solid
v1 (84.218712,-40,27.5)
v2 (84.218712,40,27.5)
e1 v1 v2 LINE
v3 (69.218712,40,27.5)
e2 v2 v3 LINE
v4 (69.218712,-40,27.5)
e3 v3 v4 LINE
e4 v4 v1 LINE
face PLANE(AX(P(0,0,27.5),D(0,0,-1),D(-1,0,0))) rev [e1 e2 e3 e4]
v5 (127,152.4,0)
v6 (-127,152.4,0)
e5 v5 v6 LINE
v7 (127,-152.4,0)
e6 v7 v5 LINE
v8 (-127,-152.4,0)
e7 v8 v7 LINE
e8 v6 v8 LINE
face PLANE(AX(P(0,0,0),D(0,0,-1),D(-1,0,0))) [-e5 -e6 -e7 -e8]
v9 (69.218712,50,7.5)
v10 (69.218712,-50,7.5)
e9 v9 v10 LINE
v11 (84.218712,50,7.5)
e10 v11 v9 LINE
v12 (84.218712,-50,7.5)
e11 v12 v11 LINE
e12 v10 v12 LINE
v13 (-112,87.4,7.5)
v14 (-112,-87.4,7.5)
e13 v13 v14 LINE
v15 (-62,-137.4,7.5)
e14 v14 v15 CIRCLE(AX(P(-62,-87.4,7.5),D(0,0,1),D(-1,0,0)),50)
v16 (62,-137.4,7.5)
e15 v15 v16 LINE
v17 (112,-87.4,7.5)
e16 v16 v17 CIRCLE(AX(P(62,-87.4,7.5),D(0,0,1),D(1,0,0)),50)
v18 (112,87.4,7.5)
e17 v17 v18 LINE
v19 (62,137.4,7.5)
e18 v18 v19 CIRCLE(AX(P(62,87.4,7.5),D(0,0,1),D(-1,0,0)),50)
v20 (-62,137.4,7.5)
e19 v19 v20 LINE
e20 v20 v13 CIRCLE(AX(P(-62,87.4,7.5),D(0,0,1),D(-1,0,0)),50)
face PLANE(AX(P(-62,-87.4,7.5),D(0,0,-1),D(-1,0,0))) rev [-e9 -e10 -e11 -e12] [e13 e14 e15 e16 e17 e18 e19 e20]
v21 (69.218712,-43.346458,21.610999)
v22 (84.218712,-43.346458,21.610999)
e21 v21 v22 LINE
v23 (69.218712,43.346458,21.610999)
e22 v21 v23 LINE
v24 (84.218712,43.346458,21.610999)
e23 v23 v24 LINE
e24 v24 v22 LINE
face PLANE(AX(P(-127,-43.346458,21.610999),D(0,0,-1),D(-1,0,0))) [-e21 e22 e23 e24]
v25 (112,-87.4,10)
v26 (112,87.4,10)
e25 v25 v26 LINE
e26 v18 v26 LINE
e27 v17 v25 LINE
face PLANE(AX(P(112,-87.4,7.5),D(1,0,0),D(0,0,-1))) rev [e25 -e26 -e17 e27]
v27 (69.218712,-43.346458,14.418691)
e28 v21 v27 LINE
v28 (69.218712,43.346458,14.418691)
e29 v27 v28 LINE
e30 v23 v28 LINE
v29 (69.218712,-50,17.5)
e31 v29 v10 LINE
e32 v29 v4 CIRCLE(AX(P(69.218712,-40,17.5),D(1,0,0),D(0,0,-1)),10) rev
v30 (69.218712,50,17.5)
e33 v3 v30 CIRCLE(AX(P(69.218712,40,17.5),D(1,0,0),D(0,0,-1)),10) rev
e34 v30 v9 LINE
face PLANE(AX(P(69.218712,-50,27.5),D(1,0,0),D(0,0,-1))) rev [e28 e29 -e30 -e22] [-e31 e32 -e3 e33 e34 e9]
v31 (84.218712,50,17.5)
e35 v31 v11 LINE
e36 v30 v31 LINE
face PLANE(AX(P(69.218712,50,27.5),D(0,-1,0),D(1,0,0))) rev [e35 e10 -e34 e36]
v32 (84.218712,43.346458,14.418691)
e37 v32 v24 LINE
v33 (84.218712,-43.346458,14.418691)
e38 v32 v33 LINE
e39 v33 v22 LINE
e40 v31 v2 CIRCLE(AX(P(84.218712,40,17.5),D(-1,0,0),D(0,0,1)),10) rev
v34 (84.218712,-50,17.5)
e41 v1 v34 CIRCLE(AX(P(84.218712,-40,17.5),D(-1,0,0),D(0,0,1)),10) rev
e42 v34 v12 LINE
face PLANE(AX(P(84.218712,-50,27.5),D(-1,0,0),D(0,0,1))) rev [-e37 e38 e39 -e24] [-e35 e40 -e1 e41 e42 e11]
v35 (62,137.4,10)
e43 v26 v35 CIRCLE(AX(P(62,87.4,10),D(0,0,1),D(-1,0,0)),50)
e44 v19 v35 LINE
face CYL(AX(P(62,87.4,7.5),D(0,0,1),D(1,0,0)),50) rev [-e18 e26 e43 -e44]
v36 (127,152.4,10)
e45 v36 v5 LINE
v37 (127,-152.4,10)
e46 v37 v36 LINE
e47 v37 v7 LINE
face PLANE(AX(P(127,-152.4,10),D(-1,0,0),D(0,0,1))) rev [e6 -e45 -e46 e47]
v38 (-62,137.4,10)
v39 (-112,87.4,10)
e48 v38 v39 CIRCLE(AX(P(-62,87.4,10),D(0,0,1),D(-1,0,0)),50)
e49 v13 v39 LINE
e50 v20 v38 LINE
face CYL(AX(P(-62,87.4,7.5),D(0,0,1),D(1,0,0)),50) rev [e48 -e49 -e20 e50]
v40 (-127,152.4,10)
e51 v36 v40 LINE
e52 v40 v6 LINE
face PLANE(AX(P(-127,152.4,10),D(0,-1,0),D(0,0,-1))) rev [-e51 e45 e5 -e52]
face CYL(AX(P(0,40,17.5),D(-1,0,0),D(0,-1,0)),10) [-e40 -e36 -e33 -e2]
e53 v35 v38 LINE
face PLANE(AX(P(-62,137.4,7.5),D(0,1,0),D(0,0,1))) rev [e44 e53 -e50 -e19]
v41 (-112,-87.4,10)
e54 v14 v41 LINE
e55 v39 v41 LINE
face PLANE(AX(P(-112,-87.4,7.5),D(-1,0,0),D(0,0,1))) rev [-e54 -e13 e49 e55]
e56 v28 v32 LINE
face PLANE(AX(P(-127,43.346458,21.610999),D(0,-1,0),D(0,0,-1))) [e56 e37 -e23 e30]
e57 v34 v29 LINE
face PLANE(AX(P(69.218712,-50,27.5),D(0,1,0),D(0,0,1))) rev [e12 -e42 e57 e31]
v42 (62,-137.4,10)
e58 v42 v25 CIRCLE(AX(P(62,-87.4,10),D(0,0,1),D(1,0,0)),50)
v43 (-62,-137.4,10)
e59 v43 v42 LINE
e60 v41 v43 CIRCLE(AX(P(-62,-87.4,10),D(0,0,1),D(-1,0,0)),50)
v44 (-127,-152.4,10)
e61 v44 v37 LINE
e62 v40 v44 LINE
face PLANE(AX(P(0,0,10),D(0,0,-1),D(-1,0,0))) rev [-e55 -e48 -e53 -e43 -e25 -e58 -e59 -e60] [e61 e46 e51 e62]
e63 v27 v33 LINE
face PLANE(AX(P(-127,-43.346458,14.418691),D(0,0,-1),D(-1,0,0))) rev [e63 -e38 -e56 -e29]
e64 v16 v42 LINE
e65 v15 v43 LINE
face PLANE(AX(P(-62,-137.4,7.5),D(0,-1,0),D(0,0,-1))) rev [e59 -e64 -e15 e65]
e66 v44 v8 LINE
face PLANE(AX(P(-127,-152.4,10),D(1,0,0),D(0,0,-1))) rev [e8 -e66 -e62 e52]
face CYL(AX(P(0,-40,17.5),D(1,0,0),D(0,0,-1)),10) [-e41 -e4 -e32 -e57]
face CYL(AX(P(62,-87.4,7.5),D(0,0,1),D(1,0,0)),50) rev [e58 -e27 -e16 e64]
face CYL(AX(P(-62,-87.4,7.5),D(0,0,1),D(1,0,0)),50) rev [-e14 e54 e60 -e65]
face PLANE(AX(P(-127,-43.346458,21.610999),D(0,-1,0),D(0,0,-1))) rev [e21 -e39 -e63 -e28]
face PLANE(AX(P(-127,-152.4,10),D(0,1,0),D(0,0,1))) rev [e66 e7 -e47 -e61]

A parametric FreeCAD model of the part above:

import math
import FreeCAD as App
import Part
import Sketcher

V = App.Vector
Q = App.Units.Quantity


def edges_at(feature, points):
    """Names of the edges that pass closest to the given points."""
    edges = feature.Shape.Edges
    near = lambda p: min(range(len(edges)), key=lambda i: edges[i].distToShape(Part.Vertex(*p))[0])
    return sorted({f"Edge{near(p) + 1}" for p in points})


def add_polygon(sketch, points):
    """Adds a closed chain of lines whose ends are joined by coincident constraints."""
    first, n = sketch.GeometryCount, len(points)
    for a, b in zip(points, points[1:] + points[:1]):
        sketch.addGeometry(Part.LineSegment(App.Vector(*a, 0), App.Vector(*b, 0)), False)
    for i in range(n):
        sketch.addConstraint(Sketcher.Constraint("Coincident", first + i, 2, first + (i + 1) % n, 1))

doc = App.newDocument("Part")
body = doc.addObject("PartDesign::Body", "Body")

# Sketch on XY plane
sketch1 = doc.addObject("Sketcher::SketchObject", "Sketch")
body.addObject(sketch1)
sketch1.AttachmentSupport = (doc.XY_Plane, [""])
sketch1.MapMode = "FlatFace"
add_polygon(sketch1, [(-127, 152.4), (-127, -152.4), (127, -152.4), (127, 152.4)])  # lines 0-3
sketch1.addConstraint([
    Sketcher.Constraint("Vertical", 0),
    Sketcher.Constraint("Horizontal", 1),
    Sketcher.Constraint("Vertical", 2),
    Sketcher.Constraint("Horizontal", 3),
    Sketcher.Constraint("Symmetric", 0, 2, 2, 2, -1, 1),
    Sketcher.Constraint("DistanceX", 1, 1, 1, 2, Q("254 mm")),
    Sketcher.Constraint("DistanceY", 0, 2, 0, 1, Q("304.8 mm")),
])
pad1 = doc.addObject("PartDesign::Pad", "Pad")
body.addObject(pad1)
pad1.Profile = sketch1
pad1.Length = 10

# Sketch on XY plane
sketch2 = doc.addObject("Sketcher::SketchObject", "Sketch001")
body.addObject(sketch2)
sketch2.AttachmentSupport = (doc.XY_Plane, [""])
sketch2.MapMode = "FlatFace"
sketch2.AttachmentOffset = App.Placement(V(0, 0, 10), App.Rotation())
sketch2.addGeometry([
    Part.LineSegment(V(-62, -137.4, 0), V(62, -137.4, 0)),  # 0
    Part.ArcOfCircle(Part.Circle(V(62, -87.4, 0), V(0, 0, 1), 50), math.radians(-90), math.radians(0)),  # 1
    Part.LineSegment(V(112, -87.4, 0), V(112, 87.4, 0)),  # 2
    Part.ArcOfCircle(Part.Circle(V(62, 87.4, 0), V(0, 0, 1), 50), math.radians(0), math.radians(90)),  # 3
    Part.LineSegment(V(62, 137.4, 0), V(-62, 137.4, 0)),  # 4
    Part.ArcOfCircle(Part.Circle(V(-62, 87.4, 0), V(0, 0, 1), 50), math.radians(90), math.radians(180)),  # 5
    Part.LineSegment(V(-112, 87.4, 0), V(-112, -87.4, 0)),  # 6
    Part.ArcOfCircle(Part.Circle(V(-62, -87.4, 0), V(0, 0, 1), 50), math.radians(-180), math.radians(-90)),  # 7
], False)
sketch2.addConstraint([
    Sketcher.Constraint("Tangent", 0, 2, 1, 1),
    Sketcher.Constraint("Tangent", 1, 2, 2, 1),
    Sketcher.Constraint("Tangent", 2, 2, 3, 1),
    Sketcher.Constraint("Tangent", 3, 2, 4, 1),
    Sketcher.Constraint("Tangent", 4, 2, 5, 1),
    Sketcher.Constraint("Tangent", 5, 2, 6, 1),
    Sketcher.Constraint("Tangent", 6, 2, 7, 1),
    Sketcher.Constraint("Tangent", 7, 2, 0, 1),
    Sketcher.Constraint("Horizontal", 0),
    Sketcher.Constraint("Vertical", 2),
    Sketcher.Constraint("Horizontal", 4),
    Sketcher.Constraint("Vertical", 6),
    Sketcher.Constraint("Equal", 1, 3),
    Sketcher.Constraint("Equal", 3, 5),
    Sketcher.Constraint("Equal", 5, 7),
    Sketcher.Constraint("Symmetric", 1, 3, 5, 3, -1, 1),
    Sketcher.Constraint("Radius", 1, Q("50 mm")),
    Sketcher.Constraint("DistanceX", 0, 1, 0, 2, Q("124 mm")),
    Sketcher.Constraint("DistanceY", 2, 1, 2, 2, Q("174.8 mm")),
])
pocket1 = doc.addObject("PartDesign::Pocket", "Pocket")
body.addObject(pocket1)
pocket1.Profile = sketch2
pocket1.Length = 2.5

# Sketch on XY plane
sketch3 = doc.addObject("Sketcher::SketchObject", "Sketch002")
body.addObject(sketch3)
sketch3.AttachmentSupport = (doc.XY_Plane, [""])
sketch3.MapMode = "FlatFace"
sketch3.AttachmentOffset = App.Placement(V(0, 0, 7.5), App.Rotation())
add_polygon(sketch3, [(69.218712, 50), (69.218712, -50), (84.218712, -50), (84.218712, 50)])  # lines 0-3
sketch3.addConstraint([
    Sketcher.Constraint("Vertical", 0),
    Sketcher.Constraint("Horizontal", 1),
    Sketcher.Constraint("Vertical", 2),
    Sketcher.Constraint("Horizontal", 3),
    Sketcher.Constraint("DistanceX", 1, 1, 1, 2, Q("15 mm")),
    Sketcher.Constraint("DistanceY", 0, 2, 0, 1, Q("100 mm")),
    Sketcher.Constraint("DistanceY", 0, 2, -1, 1, Q("50 mm")),
    Sketcher.Constraint("DistanceX", -1, 1, 0, 2, Q("69.218712 mm")),
])
pad2 = doc.addObject("PartDesign::Pad", "Pad001")
body.addObject(pad2)
pad2.Profile = sketch3
pad2.Length = 20

# Sketch on YZ plane
sketch4 = doc.addObject("Sketcher::SketchObject", "Sketch003")
body.addObject(sketch4)
sketch4.AttachmentSupport = (doc.YZ_Plane, [""])
sketch4.MapMode = "FlatFace"
sketch4.AttachmentOffset = App.Placement(V(0, 0, 84.218712), App.Rotation())
add_polygon(sketch4, [(43.346458, 21.610999), (-43.346458, 21.610999), (-43.346458, 14.418691), (43.346458, 14.418691)])  # lines 0-3
sketch4.addConstraint([
    Sketcher.Constraint("Horizontal", 0),
    Sketcher.Constraint("Vertical", 1),
    Sketcher.Constraint("Horizontal", 2),
    Sketcher.Constraint("Vertical", 3),
    Sketcher.Constraint("DistanceY", -1, 1, 0, 2, Q("21.610999 mm")),
    Sketcher.Constraint("DistanceX", 0, 2, 0, 1, Q("86.692916 mm")),
    Sketcher.Constraint("DistanceY", 1, 2, 1, 1, Q("7.192308 mm")),
    Sketcher.Constraint("DistanceX", 0, 2, -1, 1, Q("43.346458 mm")),
])
pocket2 = doc.addObject("PartDesign::Pocket", "Pocket001")
body.addObject(pocket2)
pocket2.Profile = sketch4
pocket2.Type = "ThroughAll"
pocket2.Midplane = True
doc.recompute()

fillet = doc.addObject("PartDesign::Fillet", "Fillet")
body.addObject(fillet)
fillet.Base = (pocket2, edges_at(pocket2, [(76.719, 50, 27.5), (76.719, -50, 27.5)]))
fillet.Radius = 10

doc.recompute()
